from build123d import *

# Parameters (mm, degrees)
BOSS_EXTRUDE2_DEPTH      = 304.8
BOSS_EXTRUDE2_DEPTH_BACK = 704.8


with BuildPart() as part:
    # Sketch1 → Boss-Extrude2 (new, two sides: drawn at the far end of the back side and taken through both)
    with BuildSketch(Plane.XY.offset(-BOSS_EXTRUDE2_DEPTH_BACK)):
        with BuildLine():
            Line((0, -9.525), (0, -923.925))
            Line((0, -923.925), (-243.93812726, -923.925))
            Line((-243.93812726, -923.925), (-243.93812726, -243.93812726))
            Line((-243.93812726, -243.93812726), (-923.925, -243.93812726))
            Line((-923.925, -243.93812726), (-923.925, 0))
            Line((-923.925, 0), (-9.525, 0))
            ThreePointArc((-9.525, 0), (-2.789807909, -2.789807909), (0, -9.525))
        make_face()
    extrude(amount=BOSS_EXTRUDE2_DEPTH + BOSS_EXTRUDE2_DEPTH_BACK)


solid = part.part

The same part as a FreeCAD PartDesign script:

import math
import FreeCAD as App
import Part
import Sketcher
from FreeCAD import Vector
Q = App.Units.Quantity

doc = App.newDocument("Part")
params = doc.addObject("Spreadsheet::Sheet", "Params")
for row, (alias, value) in enumerate([
    ("sketch1_width", "36 in"),
    ("sketch1_radius", "0.375 in"),
    ("pad1_length", "12 in"),
    ("pad1_length2", "704.8 mm"),
], start=1):
    params.set(f"A{row}", alias)
    params.set(f"B{row}", "=" + value)
    params.setAlias(f"B{row}", alias)

body = doc.addObject("PartDesign::Body", "Body")

sketch1 = body.newObject("Sketcher::SketchObject", "Sketch")
sketch1.AttachmentSupport = (doc.getObject("XY_Plane"), [""])
sketch1.MapMode = "FlatFace"
sketch1.addGeometry([
    Part.LineSegment(Vector(0, -924, 0), Vector(0, -10, 0)),
    Part.ArcOfCircle(Part.Circle(Vector(-10, -10, 0), Vector(0, 0, 1), 10), math.radians(0), math.radians(90)),
    Part.LineSegment(Vector(-10, 0, 0), Vector(-924, 0, 0)),
    Part.LineSegment(Vector(-924, 0, 0), Vector(-924, -244, 0)),
    Part.LineSegment(Vector(-924, -244, 0), Vector(-244, -244, 0)),
    Part.LineSegment(Vector(-244, -244, 0), Vector(-244, -924, 0)),
    Part.LineSegment(Vector(-244, -924, 0), Vector(0, -924, 0)),
], False)
sketch1.addConstraint([
    Sketcher.Constraint("Tangent", 0, 2, 1, 1),
    Sketcher.Constraint("Tangent", 1, 2, 2, 1),
    Sketcher.Constraint("Coincident", 2, 2, 3, 1),
    Sketcher.Constraint("Coincident", 3, 2, 4, 1),
    Sketcher.Constraint("Coincident", 4, 2, 5, 1),
    Sketcher.Constraint("Coincident", 5, 2, 6, 1),
    Sketcher.Constraint("Coincident", 6, 2, 0, 1),
    Sketcher.Constraint("Vertical", 0),
    Sketcher.Constraint("Horizontal", 2),
    Sketcher.Constraint("Vertical", 3),
    Sketcher.Constraint("Horizontal", 4),
    Sketcher.Constraint("Vertical", 5),
    Sketcher.Constraint("Horizontal", 6),
    Sketcher.Constraint("PointOnObject", 0, 2, -2),
    Sketcher.Constraint("PointOnObject", 1, 2, -1),
    Sketcher.Constraint("Equal", 2, 0),
    Sketcher.Constraint("Equal", 6, 3),
    Sketcher.Constraint("DistanceX", 2, 2, 2, 1, Q("36 in")),
    Sketcher.Constraint("Radius", 1, Q("0.375 in")),
    Sketcher.Constraint("DistanceX", 4, 1, 4, 2, 679.986873),
])
sketch1.setExpression("Constraints[17]", "Params.sketch1_width")
sketch1.setExpression("Constraints[18]", "Params.sketch1_radius")
pad1 = body.newObject("PartDesign::Pad", "Pad")
pad1.Profile = sketch1
pad1.Type = "TwoLengths"
pad1.setExpression("Length", "Params.pad1_length")
pad1.setExpression("Length2", "Params.pad1_length2")

doc.recompute()
